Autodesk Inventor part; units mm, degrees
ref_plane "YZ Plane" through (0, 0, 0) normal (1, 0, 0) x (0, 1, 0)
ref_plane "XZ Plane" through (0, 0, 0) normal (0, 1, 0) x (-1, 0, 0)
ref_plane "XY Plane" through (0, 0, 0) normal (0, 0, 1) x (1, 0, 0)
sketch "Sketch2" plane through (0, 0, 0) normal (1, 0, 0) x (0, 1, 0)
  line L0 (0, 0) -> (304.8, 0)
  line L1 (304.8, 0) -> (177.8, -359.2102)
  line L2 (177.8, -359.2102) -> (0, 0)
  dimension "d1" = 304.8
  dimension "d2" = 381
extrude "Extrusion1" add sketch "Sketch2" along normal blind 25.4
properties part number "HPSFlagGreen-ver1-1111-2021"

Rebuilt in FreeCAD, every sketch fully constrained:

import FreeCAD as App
import Part
import Sketcher

V = App.Vector
Q = App.Units.Quantity

doc = App.newDocument("Part")
params = doc.addObject("Spreadsheet::Sheet", "Params")
for row, (alias, value) in enumerate([
    ("sketch1_width", "12 in"),
    ("sketch1_length", "15 in"),
    ("pad1_length", "1 in"),
], start=1):
    params.set(f"A{row}", alias)
    params.set(f"B{row}", "=" + value)
    params.setAlias(f"B{row}", alias)

body = doc.addObject("PartDesign::Body", "Body")

# Sketch on YZ plane
sketch1 = doc.addObject("Sketcher::SketchObject", "Sketch")
body.addObject(sketch1)
sketch1.AttachmentSupport = (doc.YZ_Plane, [""])
sketch1.MapMode = "FlatFace"
sketch1.addGeometry(Part.LineSegment(V(305, 0, 0), V(0, 0, 0)), False)
sketch1.addGeometry(Part.LineSegment(V(0, 0, 0), V(178, -359, 0)), False)
sketch1.addGeometry(Part.LineSegment(V(178, -359, 0), V(305, 0, 0)), False)
sketch1.addConstraint(Sketcher.Constraint("Coincident", 0, 2, 1, 1))
sketch1.addConstraint(Sketcher.Constraint("Coincident", 1, 2, 2, 1))
sketch1.addConstraint(Sketcher.Constraint("Coincident", 2, 2, 0, 1))
sketch1.addConstraint(Sketcher.Constraint("Horizontal", 0))
sketch1.addConstraint(Sketcher.Constraint("Coincident", 0, 2, -1, 1))
sketch1.addConstraint(Sketcher.Constraint("DistanceX", 0, 2, 0, 1, Q("12 in")))
sketch1.addConstraint(Sketcher.Constraint("Distance", 2, Q("15 in")))
sketch1.addConstraint(Sketcher.Constraint("DistanceX", -1, 1, 1, 2, Q("7 in")))
sketch1.setExpression("Constraints[5]", "Params.sketch1_width")
sketch1.setExpression("Constraints[6]", "Params.sketch1_length")
pad1 = doc.addObject("PartDesign::Pad", "Pad")
body.addObject(pad1)
pad1.Profile = sketch1
pad1.setExpression("Length", "Params.pad1_length")

doc.recompute()
